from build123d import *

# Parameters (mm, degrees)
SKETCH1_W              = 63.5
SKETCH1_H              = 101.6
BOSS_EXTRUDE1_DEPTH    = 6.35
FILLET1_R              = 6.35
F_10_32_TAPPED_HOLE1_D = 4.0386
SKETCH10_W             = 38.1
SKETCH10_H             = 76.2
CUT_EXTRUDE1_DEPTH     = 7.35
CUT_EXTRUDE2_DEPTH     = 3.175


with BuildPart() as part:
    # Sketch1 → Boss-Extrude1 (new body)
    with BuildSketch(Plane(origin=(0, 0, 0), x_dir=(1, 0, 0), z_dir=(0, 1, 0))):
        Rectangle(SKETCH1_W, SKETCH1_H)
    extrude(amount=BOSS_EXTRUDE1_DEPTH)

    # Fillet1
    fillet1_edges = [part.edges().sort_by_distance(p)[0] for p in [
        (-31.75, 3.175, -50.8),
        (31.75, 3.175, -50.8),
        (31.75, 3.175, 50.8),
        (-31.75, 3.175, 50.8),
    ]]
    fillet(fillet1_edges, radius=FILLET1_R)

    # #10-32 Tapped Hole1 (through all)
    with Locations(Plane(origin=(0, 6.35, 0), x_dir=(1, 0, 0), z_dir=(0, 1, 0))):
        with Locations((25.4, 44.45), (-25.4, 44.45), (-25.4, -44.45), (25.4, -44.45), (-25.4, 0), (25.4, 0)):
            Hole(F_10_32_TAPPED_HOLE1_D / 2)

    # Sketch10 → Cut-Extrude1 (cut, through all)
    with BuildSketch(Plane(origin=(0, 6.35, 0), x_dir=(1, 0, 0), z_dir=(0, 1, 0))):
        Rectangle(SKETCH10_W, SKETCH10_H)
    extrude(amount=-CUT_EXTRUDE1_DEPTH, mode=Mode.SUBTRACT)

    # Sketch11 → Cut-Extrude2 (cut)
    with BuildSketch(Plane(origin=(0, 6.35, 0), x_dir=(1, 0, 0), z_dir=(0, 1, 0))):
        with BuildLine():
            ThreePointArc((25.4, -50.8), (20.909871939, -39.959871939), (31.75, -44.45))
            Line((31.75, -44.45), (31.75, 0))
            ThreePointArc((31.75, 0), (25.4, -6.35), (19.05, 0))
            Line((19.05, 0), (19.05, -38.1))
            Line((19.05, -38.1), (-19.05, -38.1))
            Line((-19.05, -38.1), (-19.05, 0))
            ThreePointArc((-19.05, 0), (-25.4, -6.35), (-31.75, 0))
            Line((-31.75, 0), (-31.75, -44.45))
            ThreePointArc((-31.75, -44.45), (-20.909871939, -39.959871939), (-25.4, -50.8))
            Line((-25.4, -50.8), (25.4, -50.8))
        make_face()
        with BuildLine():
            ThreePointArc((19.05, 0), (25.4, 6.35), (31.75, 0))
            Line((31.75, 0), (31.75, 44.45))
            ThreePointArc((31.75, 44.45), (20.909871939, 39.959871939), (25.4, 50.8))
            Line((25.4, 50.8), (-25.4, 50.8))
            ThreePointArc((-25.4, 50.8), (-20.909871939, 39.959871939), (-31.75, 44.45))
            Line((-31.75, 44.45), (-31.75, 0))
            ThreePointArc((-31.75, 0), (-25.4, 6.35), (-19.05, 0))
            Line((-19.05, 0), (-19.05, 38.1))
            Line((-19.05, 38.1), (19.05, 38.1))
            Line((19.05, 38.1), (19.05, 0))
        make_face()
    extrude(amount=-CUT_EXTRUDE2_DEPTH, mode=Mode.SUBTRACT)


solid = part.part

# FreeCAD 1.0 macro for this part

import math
import FreeCAD as App
import Part
import Sketcher
Q = App.Units.Quantity


def edges_at(feature, points):
    """Names of the edges that pass closest to the given points."""
    edges = feature.Shape.Edges
    near = lambda p: min(range(len(edges)), key=lambda i: edges[i].distToShape(Part.Vertex(*p))[0])
    return sorted({f"Edge{near(p) + 1}" for p in points})


def add_polygon(sketch, points):
    """Adds a closed chain of lines whose ends are joined by coincident constraints."""
    first, n = sketch.GeometryCount, len(points)
    for a, b in zip(points, points[1:] + points[:1]):
        sketch.addGeometry(Part.LineSegment(App.Vector(*a, 0), App.Vector(*b, 0)), False)
    for i in range(n):
        sketch.addConstraint(Sketcher.Constraint("Coincident", first + i, 2, first + (i + 1) % n, 1))

doc = App.newDocument("Part")
params = doc.addObject("Spreadsheet::Sheet", "Params")
for row, (alias, value) in enumerate([
    ("sketch1_height", "4 in"),
    ("sketch1_width", "2.5 in"),
    ("pad1_length", "0.25 in"),
    ("fillet_radius", "0.25 in"),
    ("sketch2_diameter", "0.159 in"),
    ("hole_diameter", "0.159 in"),
    ("sketch3_height", "3 in"),
    ("sketch3_width", "1.5 in"),
    ("sketch4_width", "2 in"),
    ("sketch4_radius", "0.25 in"),
    ("pocket2_length", "0.125 in"),
], start=1):
    params.set(f"A{row}", alias)
    params.set(f"B{row}", "=" + value)
    params.setAlias(f"B{row}", alias)

body = doc.addObject("PartDesign::Body", "Body")

# Sketch on XZ plane
sketch1 = body.newObject("Sketcher::SketchObject", "Sketch")
sketch1.AttachmentSupport = (doc.getObject("XZ_Plane"), [""])
sketch1.MapMode = "FlatFace"
add_polygon(sketch1, [(-31.75, -50.8), (-31.75, 50.8), (31.75, 50.8), (31.75, -50.8)])  # lines 0-3
sketch1.addConstraint(Sketcher.Constraint("Vertical", 0))
sketch1.addConstraint(Sketcher.Constraint("Horizontal", 1))
sketch1.addConstraint(Sketcher.Constraint("Vertical", 2))
sketch1.addConstraint(Sketcher.Constraint("Horizontal", 3))
sketch1.addConstraint(Sketcher.Constraint("Symmetric", 0, 2, 2, 2, -1, 1))
sketch1.addConstraint(Sketcher.Constraint("DistanceY", 0, 1, 0, 2, Q("4 in")))
sketch1.addConstraint(Sketcher.Constraint("DistanceX", 1, 1, 1, 2, Q("2.5 in")))
sketch1.setExpression("Constraints[9]", "Params.sketch1_height")
sketch1.setExpression("Constraints[10]", "Params.sketch1_width")
pad1 = body.newObject("PartDesign::Pad", "Pad")
pad1.Profile = sketch1
pad1.setExpression("Length", "Params.pad1_length")
pad1.Reversed = True
doc.recompute()

fillet = body.newObject("PartDesign::Fillet", "Fillet")
fillet.Base = (pad1, edges_at(pad1, [
    (-31.75, 3.175, -50.8),
    (31.75, 3.175, -50.8),
    (31.75, 3.175, 50.8),
    (-31.75, 3.175, 50.8),
]))
fillet.setExpression("Radius", "Params.fillet_radius")

# Sketch on XZ plane
sketch2 = body.newObject("Sketcher::SketchObject", "Sketch001")
sketch2.AttachmentSupport = (doc.getObject("XZ_Plane"), [""])
sketch2.MapMode = "FlatFace"
sketch2.AttachmentOffset = App.Placement(App.Vector(0, 0, -0.25 * 25.4), App.Rotation())
sketch2.addGeometry(Part.Circle(App.Vector(25.4, -44.45, 0), App.Vector(0, 0, 1), 2.0193), False)
sketch2.addGeometry(Part.Circle(App.Vector(-25.4, -44.45, 0), App.Vector(0, 0, 1), 2.0193), False)
sketch2.addGeometry(Part.Circle(App.Vector(-25.4, 44.45, 0), App.Vector(0, 0, 1), 2.0193), False)
sketch2.addGeometry(Part.Circle(App.Vector(25.4, 44.45, 0), App.Vector(0, 0, 1), 2.0193), False)
sketch2.addGeometry(Part.Circle(App.Vector(-25.4, 0, 0), App.Vector(0, 0, 1), 2.0193), False)
sketch2.addGeometry(Part.Circle(App.Vector(25.4, 0, 0), App.Vector(0, 0, 1), 2.0193), False)
sketch2.addConstraint(Sketcher.Constraint("Equal", 0, 1))
sketch2.addConstraint(Sketcher.Constraint("Equal", 1, 2))
sketch2.addConstraint(Sketcher.Constraint("Equal", 2, 3))
sketch2.addConstraint(Sketcher.Constraint("Equal", 3, 4))
sketch2.addConstraint(Sketcher.Constraint("Equal", 4, 5))
sketch2.addConstraint(Sketcher.Constraint("Symmetric", 0, 3, 2, 3, -1, 1))
sketch2.addConstraint(Sketcher.Constraint("Symmetric", 1, 3, 3, 3, -1, 1))
sketch2.addConstraint(Sketcher.Constraint("Symmetric", 4, 3, 5, 3, -1, 1))
sketch2.addConstraint(Sketcher.Constraint("Symmetric", 0, 3, 1, 3, -2))
sketch2.addConstraint(Sketcher.Constraint("PointOnObject", 4, 3, -1))
sketch2.addConstraint(Sketcher.Constraint("Vertical", 2, 3, 4, 3))
sketch2.addConstraint(Sketcher.Constraint("Diameter", 0, Q("0.159 in")))
sketch2.addConstraint(Sketcher.Constraint("DistanceX", -1, 1, 0, 3, Q("1 in")))
sketch2.addConstraint(Sketcher.Constraint("DistanceY", 1, 3, 2, 3, Q("3.5 in")))
sketch2.setExpression("Constraints[11]", "Params.sketch2_diameter")
doc.recompute()
hole = body.newObject("PartDesign::Hole", "Hole")
hole.Profile = sketch2
hole.ThreadType = "None"
hole.setExpression("Diameter", "Params.hole_diameter")
hole.DepthType = "ThroughAll"
hole.Reversed = True

# Sketch on XZ plane
sketch3 = body.newObject("Sketcher::SketchObject", "Sketch002")
sketch3.AttachmentSupport = (doc.getObject("XZ_Plane"), [""])
sketch3.MapMode = "FlatFace"
sketch3.AttachmentOffset = App.Placement(App.Vector(0, 0, -0.25 * 25.4), App.Rotation())
add_polygon(sketch3, [(-19.05, -38.1), (-19.05, 38.1), (19.05, 38.1), (19.05, -38.1)])  # lines 0-3
sketch3.addConstraint(Sketcher.Constraint("Vertical", 0))
sketch3.addConstraint(Sketcher.Constraint("Horizontal", 1))
sketch3.addConstraint(Sketcher.Constraint("Vertical", 2))
sketch3.addConstraint(Sketcher.Constraint("Horizontal", 3))
sketch3.addConstraint(Sketcher.Constraint("Symmetric", 0, 2, 2, 2, -1, 1))
sketch3.addConstraint(Sketcher.Constraint("DistanceY", 0, 1, 0, 2, Q("3 in")))
sketch3.addConstraint(Sketcher.Constraint("DistanceX", 1, 1, 1, 2, Q("1.5 in")))
sketch3.setExpression("Constraints[9]", "Params.sketch3_height")
sketch3.setExpression("Constraints[10]", "Params.sketch3_width")
pocket1 = body.newObject("PartDesign::Pocket", "Pocket")
pocket1.Profile = sketch3
pocket1.Type = "ThroughAll"
pocket1.Reversed = True

# Sketch on XZ plane
sketch4 = body.newObject("Sketcher::SketchObject", "Sketch003")
sketch4.AttachmentSupport = (doc.getObject("XZ_Plane"), [""])
sketch4.MapMode = "FlatFace"
sketch4.AttachmentOffset = App.Placement(App.Vector(0, 0, -0.25 * 25.4), App.Rotation())
sketch4.addGeometry(Part.ArcOfCircle(Part.Circle(App.Vector(25.4, 44.45, 0), App.Vector(0, 0, 1), 6.35), math.radians(90), math.radians(360)), False)
sketch4.addGeometry(Part.LineSegment(App.Vector(31.75, 44.45, 0), App.Vector(31.75, 0, 0)), False)
sketch4.addGeometry(Part.ArcOfCircle(Part.Circle(App.Vector(25.4, 0, 0), App.Vector(0, 0, 1), 6.35), math.radians(0), math.radians(180)), False)
sketch4.addGeometry(Part.LineSegment(App.Vector(19.05, 0, 0), App.Vector(19.05, 38.1, 0)), False)
sketch4.addGeometry(Part.LineSegment(App.Vector(19.05, 38.1, 0), App.Vector(-19.05, 38.1, 0)), False)
sketch4.addGeometry(Part.LineSegment(App.Vector(-19.05, 38.1, 0), App.Vector(-19.05, 0, 0)), False)
sketch4.addGeometry(Part.ArcOfCircle(Part.Circle(App.Vector(-25.4, 0, 0), App.Vector(0, 0, 1), 6.35), math.radians(0), math.radians(180)), False)
sketch4.addGeometry(Part.LineSegment(App.Vector(-31.75, 0, 0), App.Vector(-31.75, 44.45, 0)), False)
sketch4.addGeometry(Part.ArcOfCircle(Part.Circle(App.Vector(-25.4, 44.45, 0), App.Vector(0, 0, 1), 6.35), math.radians(180), math.radians(450)), False)
sketch4.addGeometry(Part.LineSegment(App.Vector(-25.4, 50.8, 0), App.Vector(25.4, 50.8, 0)), False)
sketch4.addGeometry(Part.ArcOfCircle(Part.Circle(App.Vector(25.4, 0, 0), App.Vector(0, 0, 1), 6.35), math.radians(180), math.radians(360)), False)
sketch4.addGeometry(Part.LineSegment(App.Vector(31.75, 0, 0), App.Vector(31.75, -44.45, 0)), False)
sketch4.addGeometry(Part.ArcOfCircle(Part.Circle(App.Vector(25.4, -44.45, 0), App.Vector(0, 0, 1), 6.35), math.radians(0), math.radians(270)), False)
sketch4.addGeometry(Part.LineSegment(App.Vector(25.4, -50.8, 0), App.Vector(-25.4, -50.8, 0)), False)
sketch4.addGeometry(Part.ArcOfCircle(Part.Circle(App.Vector(-25.4, -44.45, 0), App.Vector(0, 0, 1), 6.35), math.radians(-90), math.radians(180)), False)
sketch4.addGeometry(Part.LineSegment(App.Vector(-31.75, -44.45, 0), App.Vector(-31.75, 0, 0)), False)
sketch4.addGeometry(Part.ArcOfCircle(Part.Circle(App.Vector(-25.4, 0, 0), App.Vector(0, 0, 1), 6.35), math.radians(180), math.radians(360)), False)
sketch4.addGeometry(Part.LineSegment(App.Vector(-19.05, 0, 0), App.Vector(-19.05, -38.1, 0)), False)
sketch4.addGeometry(Part.LineSegment(App.Vector(-19.05, -38.1, 0), App.Vector(19.05, -38.1, 0)), False)
sketch4.addGeometry(Part.LineSegment(App.Vector(19.05, -38.1, 0), App.Vector(19.05, 0, 0)), False)
sketch4.addConstraint(Sketcher.Constraint("Tangent", 0, 2, 1, 1))
sketch4.addConstraint(Sketcher.Constraint("Tangent", 1, 2, 2, 1))
sketch4.addConstraint(Sketcher.Constraint("Tangent", 2, 2, 3, 1))
sketch4.addConstraint(Sketcher.Constraint("Coincident", 3, 2, 4, 1))
sketch4.addConstraint(Sketcher.Constraint("Coincident", 4, 2, 5, 1))
sketch4.addConstraint(Sketcher.Constraint("Tangent", 5, 2, 6, 1))
sketch4.addConstraint(Sketcher.Constraint("Tangent", 6, 2, 7, 1))
sketch4.addConstraint(Sketcher.Constraint("Tangent", 7, 2, 8, 1))
sketch4.addConstraint(Sketcher.Constraint("Tangent", 8, 2, 9, 1))
sketch4.addConstraint(Sketcher.Constraint("Tangent", 9, 2, 0, 1))
sketch4.addConstraint(Sketcher.Constraint("Tangent", 10, 2, 11, 1))
sketch4.addConstraint(Sketcher.Constraint("Tangent", 11, 2, 12, 1))
sketch4.addConstraint(Sketcher.Constraint("Tangent", 12, 2, 13, 1))
sketch4.addConstraint(Sketcher.Constraint("Tangent", 13, 2, 14, 1))
sketch4.addConstraint(Sketcher.Constraint("Tangent", 14, 2, 15, 1))
sketch4.addConstraint(Sketcher.Constraint("Tangent", 15, 2, 16, 1))
sketch4.addConstraint(Sketcher.Constraint("Tangent", 16, 2, 17, 1))
sketch4.addConstraint(Sketcher.Constraint("Coincident", 17, 2, 18, 1))
sketch4.addConstraint(Sketcher.Constraint("Coincident", 18, 2, 19, 1))
sketch4.addConstraint(Sketcher.Constraint("Tangent", 19, 2, 10, 1))
sketch4.addConstraint(Sketcher.Constraint("Vertical", 1))
sketch4.addConstraint(Sketcher.Constraint("Vertical", 3))
sketch4.addConstraint(Sketcher.Constraint("Horizontal", 4))
sketch4.addConstraint(Sketcher.Constraint("Vertical", 5))
sketch4.addConstraint(Sketcher.Constraint("Vertical", 7))
sketch4.addConstraint(Sketcher.Constraint("Horizontal", 9))
sketch4.addConstraint(Sketcher.Constraint("Vertical", 11))
sketch4.addConstraint(Sketcher.Constraint("Horizontal", 13))
sketch4.addConstraint(Sketcher.Constraint("Vertical", 15))
sketch4.addConstraint(Sketcher.Constraint("Vertical", 17))
sketch4.addConstraint(Sketcher.Constraint("Horizontal", 18))
sketch4.addConstraint(Sketcher.Constraint("Vertical", 19))
sketch4.addConstraint(Sketcher.Constraint("Coincident", 10, 3, 2, 3))
sketch4.addConstraint(Sketcher.Constraint("Coincident", 16, 3, 6, 3))
sketch4.addConstraint(Sketcher.Constraint("Equal", 0, 2))
sketch4.addConstraint(Sketcher.Constraint("Equal", 2, 6))
sketch4.addConstraint(Sketcher.Constraint("Equal", 6, 8))
sketch4.addConstraint(Sketcher.Constraint("Equal", 8, 10))
sketch4.addConstraint(Sketcher.Constraint("Equal", 10, 12))
sketch4.addConstraint(Sketcher.Constraint("Equal", 12, 14))
sketch4.addConstraint(Sketcher.Constraint("Equal", 14, 16))
sketch4.addConstraint(Sketcher.Constraint("Symmetric", 2, 3, 6, 3, -1, 1))
sketch4.addConstraint(Sketcher.Constraint("PointOnObject", 2, 3, -1))
sketch4.addConstraint(Sketcher.Constraint("Equal", 18, 3))
sketch4.addConstraint(Sketcher.Constraint("Equal", 7, 11))
sketch4.addConstraint(Sketcher.Constraint("Equal", 5, 17))
sketch4.addConstraint(Sketcher.Constraint("DistanceX", 9, 1, 9, 2, Q("2 in")))
sketch4.addConstraint(Sketcher.Constraint("Radius", 0, Q("0.25 in")))
sketch4.addConstraint(Sketcher.Constraint("DistanceY", -1, 1, 8, 2, Q("2 in")))
sketch4.setExpression("Constraints[46]", "Params.sketch4_width")
sketch4.setExpression("Constraints[47]", "Params.sketch4_radius")
pocket2 = body.newObject("PartDesign::Pocket", "Pocket001")
pocket2.Profile = sketch4
pocket2.setExpression("Length", "Params.pocket2_length")
pocket2.Reversed = True

doc.recompute()
